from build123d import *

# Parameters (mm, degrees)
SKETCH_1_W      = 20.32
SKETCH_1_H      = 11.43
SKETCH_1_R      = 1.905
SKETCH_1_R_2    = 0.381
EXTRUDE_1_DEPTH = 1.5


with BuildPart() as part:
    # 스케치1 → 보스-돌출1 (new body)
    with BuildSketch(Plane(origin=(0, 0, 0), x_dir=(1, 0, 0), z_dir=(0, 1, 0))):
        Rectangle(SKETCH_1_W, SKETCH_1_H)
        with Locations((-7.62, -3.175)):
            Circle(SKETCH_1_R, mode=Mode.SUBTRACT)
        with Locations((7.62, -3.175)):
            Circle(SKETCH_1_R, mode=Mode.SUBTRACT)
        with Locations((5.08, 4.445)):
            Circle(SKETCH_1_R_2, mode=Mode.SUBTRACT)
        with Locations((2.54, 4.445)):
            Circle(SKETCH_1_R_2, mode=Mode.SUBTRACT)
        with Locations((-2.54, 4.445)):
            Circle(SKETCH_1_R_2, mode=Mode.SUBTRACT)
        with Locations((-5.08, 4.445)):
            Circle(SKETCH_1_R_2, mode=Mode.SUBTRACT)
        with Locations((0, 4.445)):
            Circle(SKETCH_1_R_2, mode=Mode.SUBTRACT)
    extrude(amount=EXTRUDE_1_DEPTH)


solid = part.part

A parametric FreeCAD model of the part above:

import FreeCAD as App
import Part
import Sketcher
Q = App.Units.Quantity

doc = App.newDocument("Part")
body = doc.addObject("PartDesign::Body", "Body")

# Sketch on XZ plane
sketch1 = body.newObject("Sketcher::SketchObject", "Sketch")
sketch1.AttachmentSupport = (doc.getObject("XZ_Plane"), [""])
sketch1.MapMode = "FlatFace"
sketch1.addGeometry([
    Part.LineSegment(App.Vector(-10.16, -5.71, 0), App.Vector(-10.16, 5.71, 0)),  # 0
    Part.LineSegment(App.Vector(-10.16, 5.71, 0), App.Vector(10.16, 5.71, 0)),  # 1
    Part.LineSegment(App.Vector(10.16, 5.71, 0), App.Vector(10.16, -5.71, 0)),  # 2
    Part.LineSegment(App.Vector(10.16, -5.71, 0), App.Vector(-10.16, -5.71, 0)),  # 3
    Part.Circle(App.Vector(-7.62, 3.17, 0), App.Vector(0, 0, 1), 1.91),  # 4
    Part.Circle(App.Vector(7.62, 3.17, 0), App.Vector(0, 0, 1), 1.91),  # 5
    Part.Circle(App.Vector(-5.08, -4.45, 0), App.Vector(0, 0, 1), 0.38),  # 6
    Part.Circle(App.Vector(-2.54, -4.45, 0), App.Vector(0, 0, 1), 0.38),  # 7
    Part.Circle(App.Vector(0, -4.45, 0), App.Vector(0, 0, 1), 0.38),  # 8
    Part.Circle(App.Vector(2.54, -4.45, 0), App.Vector(0, 0, 1), 0.38),  # 9
    Part.Circle(App.Vector(5.08, -4.45, 0), App.Vector(0, 0, 1), 0.38),  # 10
], False)
sketch1.addConstraint([
    Sketcher.Constraint("Coincident", 0, 2, 1, 1),
    Sketcher.Constraint("Coincident", 1, 2, 2, 1),
    Sketcher.Constraint("Coincident", 2, 2, 3, 1),
    Sketcher.Constraint("Coincident", 3, 2, 0, 1),
    Sketcher.Constraint("Vertical", 0),
    Sketcher.Constraint("Horizontal", 1),
    Sketcher.Constraint("Vertical", 2),
    Sketcher.Constraint("Horizontal", 3),
    Sketcher.Constraint("Equal", 4, 5),
    Sketcher.Constraint("Equal", 6, 7),
    Sketcher.Constraint("Equal", 7, 8),
    Sketcher.Constraint("Equal", 8, 9),
    Sketcher.Constraint("Equal", 9, 10),
    Sketcher.Constraint("Symmetric", 0, 2, 2, 2, -1, 1),
    Sketcher.Constraint("Symmetric", 4, 3, 5, 3, -2),
    Sketcher.Constraint("Symmetric", 7, 3, 9, 3, -2),
    Sketcher.Constraint("Symmetric", 6, 3, 10, 3, -2),
    Sketcher.Constraint("PointOnObject", 8, 3, -2),
    Sketcher.Constraint("Horizontal", 6, 3, 7, 3),
    Sketcher.Constraint("Horizontal", 7, 3, 8, 3),
    Sketcher.Constraint("Diameter", 4, Q("0.15 in")),
    Sketcher.Constraint("Diameter", 6, Q("0.03 in")),
    Sketcher.Constraint("DistanceX", 1, 1, 1, 2, Q("0.8 in")),
    Sketcher.Constraint("DistanceY", 0, 1, 0, 2, Q("0.45 in")),
    Sketcher.Constraint("DistanceX", 4, 3, -1, 1, Q("0.3 in")),
    Sketcher.Constraint("DistanceX", 6, 3, -1, 1, Q("0.2 in")),
    Sketcher.Constraint("DistanceX", 7, 3, -1, 1, Q("0.1 in")),
    Sketcher.Constraint("DistanceY", 6, 3, 4, 3, Q("0.3 in")),
    Sketcher.Constraint("DistanceY", 4, 3, 0, 2, Q("0.1 in")),
])
pad1 = body.newObject("PartDesign::Pad", "Pad")
pad1.Profile = sketch1
pad1.Length = 1.5
pad1.Reversed = True

doc.recompute()
